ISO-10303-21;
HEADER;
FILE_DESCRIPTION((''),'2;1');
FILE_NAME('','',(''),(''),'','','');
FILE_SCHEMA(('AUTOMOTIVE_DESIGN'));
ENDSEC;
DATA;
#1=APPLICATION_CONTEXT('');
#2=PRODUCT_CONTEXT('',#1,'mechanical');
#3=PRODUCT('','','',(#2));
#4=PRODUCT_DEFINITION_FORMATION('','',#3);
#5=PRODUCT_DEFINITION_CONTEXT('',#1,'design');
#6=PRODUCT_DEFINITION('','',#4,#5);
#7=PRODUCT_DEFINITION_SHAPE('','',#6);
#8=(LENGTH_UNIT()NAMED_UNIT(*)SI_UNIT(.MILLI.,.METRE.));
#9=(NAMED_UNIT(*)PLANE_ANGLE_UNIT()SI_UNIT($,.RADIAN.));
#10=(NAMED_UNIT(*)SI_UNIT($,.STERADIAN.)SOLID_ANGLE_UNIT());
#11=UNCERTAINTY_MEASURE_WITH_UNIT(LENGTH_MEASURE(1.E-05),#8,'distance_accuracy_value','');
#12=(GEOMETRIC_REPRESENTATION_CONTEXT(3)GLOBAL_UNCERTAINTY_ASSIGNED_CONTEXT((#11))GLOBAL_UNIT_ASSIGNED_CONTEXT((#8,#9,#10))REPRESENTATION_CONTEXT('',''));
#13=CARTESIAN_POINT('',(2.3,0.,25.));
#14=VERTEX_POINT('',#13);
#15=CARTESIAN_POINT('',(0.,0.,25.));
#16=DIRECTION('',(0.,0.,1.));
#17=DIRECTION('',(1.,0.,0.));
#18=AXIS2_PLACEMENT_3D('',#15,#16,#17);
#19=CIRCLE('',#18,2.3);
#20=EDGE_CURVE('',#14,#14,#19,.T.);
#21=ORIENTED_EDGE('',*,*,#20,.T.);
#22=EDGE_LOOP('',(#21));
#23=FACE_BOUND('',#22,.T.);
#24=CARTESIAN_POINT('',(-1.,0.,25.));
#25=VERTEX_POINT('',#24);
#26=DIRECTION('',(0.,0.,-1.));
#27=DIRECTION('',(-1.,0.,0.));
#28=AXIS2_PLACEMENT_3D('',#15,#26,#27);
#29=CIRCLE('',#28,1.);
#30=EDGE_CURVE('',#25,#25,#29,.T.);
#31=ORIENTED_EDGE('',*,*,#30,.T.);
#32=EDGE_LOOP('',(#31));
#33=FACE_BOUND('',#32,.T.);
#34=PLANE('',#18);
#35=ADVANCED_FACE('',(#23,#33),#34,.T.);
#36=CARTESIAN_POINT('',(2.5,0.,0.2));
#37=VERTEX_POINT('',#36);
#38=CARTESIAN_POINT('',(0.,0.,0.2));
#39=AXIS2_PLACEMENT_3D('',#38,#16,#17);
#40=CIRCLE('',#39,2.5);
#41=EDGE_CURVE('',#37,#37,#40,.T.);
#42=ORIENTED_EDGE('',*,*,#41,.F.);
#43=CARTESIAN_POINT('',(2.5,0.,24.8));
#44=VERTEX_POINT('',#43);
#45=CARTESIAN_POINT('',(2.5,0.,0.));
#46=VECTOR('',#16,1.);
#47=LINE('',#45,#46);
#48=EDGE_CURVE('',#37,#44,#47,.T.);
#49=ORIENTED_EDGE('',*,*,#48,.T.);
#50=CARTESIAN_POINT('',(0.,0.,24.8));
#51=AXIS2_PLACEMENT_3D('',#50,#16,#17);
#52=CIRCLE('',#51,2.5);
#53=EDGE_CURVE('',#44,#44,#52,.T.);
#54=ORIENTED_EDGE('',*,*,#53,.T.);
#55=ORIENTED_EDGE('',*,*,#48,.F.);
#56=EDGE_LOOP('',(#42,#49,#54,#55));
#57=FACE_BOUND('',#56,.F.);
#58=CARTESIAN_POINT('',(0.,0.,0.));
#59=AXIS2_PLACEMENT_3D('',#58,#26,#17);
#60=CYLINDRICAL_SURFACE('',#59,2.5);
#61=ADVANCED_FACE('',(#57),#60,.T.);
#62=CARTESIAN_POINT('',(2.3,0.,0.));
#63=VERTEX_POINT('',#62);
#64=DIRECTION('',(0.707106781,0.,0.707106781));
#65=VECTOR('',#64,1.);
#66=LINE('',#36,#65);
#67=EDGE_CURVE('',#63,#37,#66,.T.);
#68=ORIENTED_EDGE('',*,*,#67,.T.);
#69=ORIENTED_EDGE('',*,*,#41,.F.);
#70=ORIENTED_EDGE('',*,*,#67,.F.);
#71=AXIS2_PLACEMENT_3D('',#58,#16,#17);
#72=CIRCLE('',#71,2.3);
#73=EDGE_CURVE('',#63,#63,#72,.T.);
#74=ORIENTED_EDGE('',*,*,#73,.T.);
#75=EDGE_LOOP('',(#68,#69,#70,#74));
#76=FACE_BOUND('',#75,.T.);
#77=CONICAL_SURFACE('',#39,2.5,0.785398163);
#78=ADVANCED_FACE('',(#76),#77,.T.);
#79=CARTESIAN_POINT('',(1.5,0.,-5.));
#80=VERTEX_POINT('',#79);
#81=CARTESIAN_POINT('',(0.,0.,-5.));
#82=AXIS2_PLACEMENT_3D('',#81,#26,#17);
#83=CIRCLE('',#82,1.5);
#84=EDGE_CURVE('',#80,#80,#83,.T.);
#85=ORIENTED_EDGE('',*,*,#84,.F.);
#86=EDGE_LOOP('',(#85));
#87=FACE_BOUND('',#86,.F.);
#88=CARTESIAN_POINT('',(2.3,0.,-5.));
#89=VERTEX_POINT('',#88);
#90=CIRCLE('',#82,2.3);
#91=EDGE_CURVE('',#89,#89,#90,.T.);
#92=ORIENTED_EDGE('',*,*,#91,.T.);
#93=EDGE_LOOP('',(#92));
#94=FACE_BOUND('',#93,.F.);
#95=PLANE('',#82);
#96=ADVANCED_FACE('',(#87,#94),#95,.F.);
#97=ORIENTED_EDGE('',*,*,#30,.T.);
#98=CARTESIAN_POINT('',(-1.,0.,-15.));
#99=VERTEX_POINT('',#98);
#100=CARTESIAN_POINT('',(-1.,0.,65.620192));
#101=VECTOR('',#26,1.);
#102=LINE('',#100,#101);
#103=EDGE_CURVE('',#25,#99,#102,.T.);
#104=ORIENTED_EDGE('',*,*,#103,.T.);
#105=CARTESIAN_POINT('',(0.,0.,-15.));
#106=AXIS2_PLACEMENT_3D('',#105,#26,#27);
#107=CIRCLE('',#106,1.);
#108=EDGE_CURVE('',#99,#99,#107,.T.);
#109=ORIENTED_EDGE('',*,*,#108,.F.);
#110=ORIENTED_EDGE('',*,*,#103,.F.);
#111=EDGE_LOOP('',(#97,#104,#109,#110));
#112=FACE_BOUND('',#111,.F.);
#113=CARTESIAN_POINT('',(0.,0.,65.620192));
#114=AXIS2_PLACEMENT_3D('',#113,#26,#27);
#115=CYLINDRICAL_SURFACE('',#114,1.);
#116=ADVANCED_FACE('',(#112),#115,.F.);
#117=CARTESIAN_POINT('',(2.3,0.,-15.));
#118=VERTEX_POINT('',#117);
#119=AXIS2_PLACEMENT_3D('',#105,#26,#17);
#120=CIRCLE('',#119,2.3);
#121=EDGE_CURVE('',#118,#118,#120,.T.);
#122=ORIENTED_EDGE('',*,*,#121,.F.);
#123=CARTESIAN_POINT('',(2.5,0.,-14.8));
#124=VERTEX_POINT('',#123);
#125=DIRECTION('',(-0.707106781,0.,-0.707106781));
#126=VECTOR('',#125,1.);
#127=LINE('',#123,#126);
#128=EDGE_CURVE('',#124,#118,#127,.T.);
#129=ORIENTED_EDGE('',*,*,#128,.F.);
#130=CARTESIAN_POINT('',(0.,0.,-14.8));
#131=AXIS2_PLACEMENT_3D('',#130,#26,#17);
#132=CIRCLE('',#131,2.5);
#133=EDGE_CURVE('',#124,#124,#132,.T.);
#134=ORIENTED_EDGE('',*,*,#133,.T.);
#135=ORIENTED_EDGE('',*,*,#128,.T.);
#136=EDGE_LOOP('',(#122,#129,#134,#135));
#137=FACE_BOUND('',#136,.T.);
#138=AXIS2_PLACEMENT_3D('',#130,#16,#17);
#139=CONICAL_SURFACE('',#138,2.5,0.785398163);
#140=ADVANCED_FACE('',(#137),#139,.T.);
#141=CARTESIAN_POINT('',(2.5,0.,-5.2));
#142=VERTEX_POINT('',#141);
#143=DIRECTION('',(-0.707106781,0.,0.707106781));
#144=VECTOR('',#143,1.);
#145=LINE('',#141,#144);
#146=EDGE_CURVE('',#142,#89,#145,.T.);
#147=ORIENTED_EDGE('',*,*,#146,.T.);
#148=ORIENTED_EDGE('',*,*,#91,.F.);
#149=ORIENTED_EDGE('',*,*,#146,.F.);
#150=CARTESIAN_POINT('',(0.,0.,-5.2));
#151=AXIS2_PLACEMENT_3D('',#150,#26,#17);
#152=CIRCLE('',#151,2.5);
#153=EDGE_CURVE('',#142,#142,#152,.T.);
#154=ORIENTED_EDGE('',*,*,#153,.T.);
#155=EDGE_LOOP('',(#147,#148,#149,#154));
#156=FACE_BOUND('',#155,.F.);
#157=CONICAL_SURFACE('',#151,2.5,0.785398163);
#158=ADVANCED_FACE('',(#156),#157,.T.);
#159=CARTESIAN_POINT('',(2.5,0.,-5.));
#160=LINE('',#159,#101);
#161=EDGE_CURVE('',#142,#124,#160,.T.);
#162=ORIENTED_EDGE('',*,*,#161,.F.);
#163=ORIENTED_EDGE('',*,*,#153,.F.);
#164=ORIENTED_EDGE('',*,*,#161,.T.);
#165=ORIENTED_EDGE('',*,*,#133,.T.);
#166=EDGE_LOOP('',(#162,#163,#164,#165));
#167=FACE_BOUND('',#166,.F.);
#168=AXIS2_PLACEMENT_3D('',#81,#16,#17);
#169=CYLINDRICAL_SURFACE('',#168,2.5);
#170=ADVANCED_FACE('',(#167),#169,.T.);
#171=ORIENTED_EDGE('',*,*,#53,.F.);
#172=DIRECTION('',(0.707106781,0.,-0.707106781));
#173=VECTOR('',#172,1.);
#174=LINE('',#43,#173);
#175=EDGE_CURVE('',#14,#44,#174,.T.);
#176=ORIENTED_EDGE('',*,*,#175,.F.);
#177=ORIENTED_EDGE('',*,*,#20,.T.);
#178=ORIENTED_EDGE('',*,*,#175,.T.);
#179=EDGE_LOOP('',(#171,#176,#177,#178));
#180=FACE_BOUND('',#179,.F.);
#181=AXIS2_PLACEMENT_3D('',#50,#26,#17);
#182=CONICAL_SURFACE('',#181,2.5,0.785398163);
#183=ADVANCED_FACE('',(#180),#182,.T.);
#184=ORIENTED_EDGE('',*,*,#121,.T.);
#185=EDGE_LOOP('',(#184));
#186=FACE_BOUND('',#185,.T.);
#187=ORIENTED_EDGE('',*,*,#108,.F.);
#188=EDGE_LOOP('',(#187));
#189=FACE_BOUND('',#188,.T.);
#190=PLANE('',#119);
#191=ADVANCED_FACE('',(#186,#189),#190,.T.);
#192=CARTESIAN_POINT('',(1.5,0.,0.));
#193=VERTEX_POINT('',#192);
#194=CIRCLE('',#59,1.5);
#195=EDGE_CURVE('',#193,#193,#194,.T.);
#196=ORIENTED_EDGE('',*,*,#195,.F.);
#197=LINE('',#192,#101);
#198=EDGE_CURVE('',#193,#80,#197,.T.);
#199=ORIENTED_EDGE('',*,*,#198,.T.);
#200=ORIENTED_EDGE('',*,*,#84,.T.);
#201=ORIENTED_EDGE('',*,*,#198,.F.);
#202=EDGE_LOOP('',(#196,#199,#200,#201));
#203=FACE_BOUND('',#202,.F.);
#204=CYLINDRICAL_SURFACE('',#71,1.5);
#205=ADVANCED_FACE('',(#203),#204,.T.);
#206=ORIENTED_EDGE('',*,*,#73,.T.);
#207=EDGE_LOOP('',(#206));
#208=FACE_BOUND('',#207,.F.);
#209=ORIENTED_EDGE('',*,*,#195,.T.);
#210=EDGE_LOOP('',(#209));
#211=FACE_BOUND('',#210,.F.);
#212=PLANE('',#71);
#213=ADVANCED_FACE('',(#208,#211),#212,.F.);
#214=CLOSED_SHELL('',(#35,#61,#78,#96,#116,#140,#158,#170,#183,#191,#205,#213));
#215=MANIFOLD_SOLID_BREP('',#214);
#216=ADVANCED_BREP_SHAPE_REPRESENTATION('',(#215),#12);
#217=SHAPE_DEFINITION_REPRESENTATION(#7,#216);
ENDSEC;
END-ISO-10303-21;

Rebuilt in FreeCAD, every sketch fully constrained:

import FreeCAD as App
import Part
import Sketcher
from FreeCAD import Vector


def edges_at(feature, points):
    """Names of the edges that pass closest to the given points."""
    edges = feature.Shape.Edges
    near = lambda p: min(range(len(edges)), key=lambda i: edges[i].distToShape(Part.Vertex(*p))[0])
    return sorted({f"Edge{near(p) + 1}" for p in points})

doc = App.newDocument("Part")
params = doc.addObject("Spreadsheet::Sheet", "Params")
for row, (alias, value) in enumerate([
    ("sketch1_diameter", "5 mm"),
    ("pad1_length", "25 mm"),
    ("sketch2_diameter", "3 mm"),
    ("pad2_length", "5 mm"),
    ("sketch3_diameter", "5 mm"),
    ("pad3_length", "10 mm"),
    ("sketch4_diameter", "2 mm"),
    ("hole_diameter", "2 mm"),
    ("chamfer_size", "0.2 mm"),
], start=1):
    params.set(f"A{row}", alias)
    params.set(f"B{row}", "=" + value)
    params.setAlias(f"B{row}", alias)

body = doc.addObject("PartDesign::Body", "Body")

# Sketch on XY plane
sketch1 = body.newObject("Sketcher::SketchObject", "Sketch")
sketch1.AttachmentSupport = (doc.getObject("XY_Plane"), [""])
sketch1.MapMode = "FlatFace"
sketch1.addGeometry(Part.Circle(Vector(0, 0, 0), Vector(0, 0, 1), 2.5), False)
sketch1.addConstraint([
    Sketcher.Constraint("Coincident", 0, 3, -1, 1),
    Sketcher.Constraint("Diameter", 0, 5.0),
])
sketch1.setExpression("Constraints[1]", "Params.sketch1_diameter")
pad1 = body.newObject("PartDesign::Pad", "Pad")
pad1.Profile = sketch1
pad1.setExpression("Length", "Params.pad1_length")

# Sketch on XY plane
sketch2 = body.newObject("Sketcher::SketchObject", "Sketch001")
sketch2.AttachmentSupport = (doc.getObject("XY_Plane"), [""])
sketch2.MapMode = "FlatFace"
sketch2.addGeometry(Part.Circle(Vector(0, 0, 0), Vector(0, 0, 1), 1.5), False)
sketch2.addConstraint([
    Sketcher.Constraint("Coincident", 0, 3, -1, 1),
    Sketcher.Constraint("Diameter", 0, 3.0),
])
sketch2.setExpression("Constraints[1]", "Params.sketch2_diameter")
pad2 = body.newObject("PartDesign::Pad", "Pad001")
pad2.Profile = sketch2
pad2.setExpression("Length", "Params.pad2_length")
pad2.Reversed = True

# Sketch on XY plane
sketch3 = body.newObject("Sketcher::SketchObject", "Sketch002")
sketch3.AttachmentSupport = (doc.getObject("XY_Plane"), [""])
sketch3.MapMode = "FlatFace"
sketch3.AttachmentOffset = App.Placement(Vector(0, 0, -5), App.Rotation())
sketch3.addGeometry(Part.Circle(Vector(0, 0, 0), Vector(0, 0, 1), 2.5), False)
sketch3.addConstraint([
    Sketcher.Constraint("Coincident", 0, 3, -1, 1),
    Sketcher.Constraint("Diameter", 0, 5.0),
])
sketch3.setExpression("Constraints[1]", "Params.sketch3_diameter")
pad3 = body.newObject("PartDesign::Pad", "Pad002")
pad3.Profile = sketch3
pad3.setExpression("Length", "Params.pad3_length")
pad3.Reversed = True

# Sketch on XY plane
sketch4 = body.newObject("Sketcher::SketchObject", "Sketch003")
sketch4.AttachmentSupport = (doc.getObject("XY_Plane"), [""])
sketch4.MapMode = "FlatFace"
sketch4.AttachmentOffset = App.Placement(Vector(0, 0, 25), App.Rotation())
sketch4.addGeometry(Part.Circle(Vector(0, 0, 0), Vector(0, 0, 1), 1), False)
sketch4.addConstraint([
    Sketcher.Constraint("Coincident", 0, 3, -1, 1),
    Sketcher.Constraint("Diameter", 0, 2.0),
])
sketch4.setExpression("Constraints[1]", "Params.sketch4_diameter")
doc.recompute()
hole = body.newObject("PartDesign::Hole", "Hole")
hole.Profile = sketch4
hole.ThreadType = "None"
hole.setExpression("Diameter", "Params.hole_diameter")
hole.DepthType = "ThroughAll"
doc.recompute()

chamfer = body.newObject("PartDesign::Chamfer", "Chamfer")
chamfer.Base = (hole, edges_at(hole, [
    (-2.5, 0, 25),
    (-2.5, 0, -5),
    (-2.5, 0, -15),
    (-2.5, 0, 0),
]))
chamfer.setExpression("Size", "Params.chamfer_size")

doc.recompute()
